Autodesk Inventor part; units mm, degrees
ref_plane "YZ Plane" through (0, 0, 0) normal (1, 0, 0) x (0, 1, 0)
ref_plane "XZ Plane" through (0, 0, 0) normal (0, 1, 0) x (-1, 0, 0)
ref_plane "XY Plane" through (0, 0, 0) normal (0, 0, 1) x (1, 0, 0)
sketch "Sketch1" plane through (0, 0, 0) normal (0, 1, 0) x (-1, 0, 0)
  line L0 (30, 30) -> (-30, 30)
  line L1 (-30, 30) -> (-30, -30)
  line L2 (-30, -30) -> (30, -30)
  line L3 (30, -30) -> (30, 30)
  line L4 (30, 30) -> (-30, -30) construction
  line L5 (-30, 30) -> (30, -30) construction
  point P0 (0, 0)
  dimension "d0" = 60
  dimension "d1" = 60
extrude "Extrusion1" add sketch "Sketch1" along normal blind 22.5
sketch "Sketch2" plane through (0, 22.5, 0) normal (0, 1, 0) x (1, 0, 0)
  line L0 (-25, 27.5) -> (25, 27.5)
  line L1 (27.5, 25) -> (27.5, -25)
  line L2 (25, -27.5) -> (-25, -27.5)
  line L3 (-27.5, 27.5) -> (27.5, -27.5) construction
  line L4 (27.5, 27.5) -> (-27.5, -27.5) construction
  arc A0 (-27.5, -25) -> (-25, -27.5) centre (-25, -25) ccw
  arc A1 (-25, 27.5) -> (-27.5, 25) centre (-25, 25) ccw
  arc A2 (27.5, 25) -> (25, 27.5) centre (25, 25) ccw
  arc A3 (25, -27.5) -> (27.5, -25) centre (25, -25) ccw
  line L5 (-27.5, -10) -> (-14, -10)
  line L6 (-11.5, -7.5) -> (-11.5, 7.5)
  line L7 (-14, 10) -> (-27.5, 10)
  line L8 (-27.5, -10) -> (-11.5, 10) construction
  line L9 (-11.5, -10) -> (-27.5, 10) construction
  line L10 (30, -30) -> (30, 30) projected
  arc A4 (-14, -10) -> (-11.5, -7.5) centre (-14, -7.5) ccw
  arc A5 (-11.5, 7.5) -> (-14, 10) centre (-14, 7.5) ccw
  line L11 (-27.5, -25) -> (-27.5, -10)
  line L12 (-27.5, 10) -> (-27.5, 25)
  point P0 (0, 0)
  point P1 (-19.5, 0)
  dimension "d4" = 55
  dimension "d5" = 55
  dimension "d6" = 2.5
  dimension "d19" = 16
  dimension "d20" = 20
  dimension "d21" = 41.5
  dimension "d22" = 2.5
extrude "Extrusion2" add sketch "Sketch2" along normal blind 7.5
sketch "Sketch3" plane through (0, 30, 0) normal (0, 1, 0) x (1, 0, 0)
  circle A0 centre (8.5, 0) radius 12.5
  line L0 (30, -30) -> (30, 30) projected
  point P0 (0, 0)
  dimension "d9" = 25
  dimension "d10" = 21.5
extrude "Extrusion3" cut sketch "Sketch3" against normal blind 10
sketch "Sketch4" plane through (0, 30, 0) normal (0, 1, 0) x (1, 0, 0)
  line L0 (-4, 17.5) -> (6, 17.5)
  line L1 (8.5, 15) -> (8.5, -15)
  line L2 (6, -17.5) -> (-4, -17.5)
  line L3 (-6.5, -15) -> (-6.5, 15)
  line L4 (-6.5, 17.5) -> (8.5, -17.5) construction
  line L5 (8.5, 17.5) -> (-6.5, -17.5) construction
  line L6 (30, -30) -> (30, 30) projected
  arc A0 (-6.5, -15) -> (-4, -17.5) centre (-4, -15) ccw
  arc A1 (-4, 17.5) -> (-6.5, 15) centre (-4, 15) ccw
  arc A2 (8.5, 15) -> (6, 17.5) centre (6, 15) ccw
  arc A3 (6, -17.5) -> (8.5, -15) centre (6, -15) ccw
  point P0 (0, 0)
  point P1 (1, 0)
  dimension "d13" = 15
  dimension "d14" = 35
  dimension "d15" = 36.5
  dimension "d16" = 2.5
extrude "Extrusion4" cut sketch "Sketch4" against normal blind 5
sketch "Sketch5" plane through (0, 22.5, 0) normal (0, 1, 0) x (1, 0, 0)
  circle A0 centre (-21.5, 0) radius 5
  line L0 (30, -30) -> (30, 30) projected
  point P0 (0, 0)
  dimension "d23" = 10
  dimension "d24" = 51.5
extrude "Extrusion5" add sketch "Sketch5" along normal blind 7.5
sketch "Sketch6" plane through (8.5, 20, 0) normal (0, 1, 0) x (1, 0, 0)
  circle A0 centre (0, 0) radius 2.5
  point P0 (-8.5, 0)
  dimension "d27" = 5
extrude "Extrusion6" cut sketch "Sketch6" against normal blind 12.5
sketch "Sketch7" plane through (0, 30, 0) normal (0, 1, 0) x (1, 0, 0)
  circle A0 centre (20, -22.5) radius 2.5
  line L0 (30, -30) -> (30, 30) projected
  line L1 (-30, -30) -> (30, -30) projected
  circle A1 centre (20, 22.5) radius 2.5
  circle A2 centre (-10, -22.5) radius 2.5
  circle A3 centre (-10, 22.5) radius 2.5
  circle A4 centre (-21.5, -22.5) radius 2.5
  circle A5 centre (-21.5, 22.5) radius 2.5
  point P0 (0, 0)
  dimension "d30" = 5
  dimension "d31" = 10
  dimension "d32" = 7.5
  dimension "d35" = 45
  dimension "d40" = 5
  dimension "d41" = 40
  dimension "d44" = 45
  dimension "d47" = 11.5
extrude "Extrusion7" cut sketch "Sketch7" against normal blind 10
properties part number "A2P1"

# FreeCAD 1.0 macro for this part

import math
import FreeCAD as App
import Part
import Sketcher

doc = App.newDocument("Part")
body = doc.addObject("PartDesign::Body", "Body")

sketch1 = body.newObject("Sketcher::SketchObject", "Sketch")
sketch1.AttachmentSupport = (doc.getObject("XZ_Plane"), [""])
sketch1.MapMode = "FlatFace"
sketch1.addGeometry(Part.LineSegment(App.Vector(-30, -30, 0), App.Vector(-30, 30, 0)), False)
sketch1.addGeometry(Part.LineSegment(App.Vector(-30, 30, 0), App.Vector(30, 30, 0)), False)
sketch1.addGeometry(Part.LineSegment(App.Vector(30, 30, 0), App.Vector(30, -30, 0)), False)
sketch1.addGeometry(Part.LineSegment(App.Vector(30, -30, 0), App.Vector(-30, -30, 0)), False)
sketch1.addConstraint(Sketcher.Constraint("Coincident", 0, 2, 1, 1))
sketch1.addConstraint(Sketcher.Constraint("Coincident", 1, 2, 2, 1))
sketch1.addConstraint(Sketcher.Constraint("Coincident", 2, 2, 3, 1))
sketch1.addConstraint(Sketcher.Constraint("Coincident", 3, 2, 0, 1))
sketch1.addConstraint(Sketcher.Constraint("Vertical", 0))
sketch1.addConstraint(Sketcher.Constraint("Horizontal", 1))
sketch1.addConstraint(Sketcher.Constraint("Vertical", 2))
sketch1.addConstraint(Sketcher.Constraint("Horizontal", 3))
sketch1.addConstraint(Sketcher.Constraint("Symmetric", 0, 2, 2, 2, -1, 1))
sketch1.addConstraint(Sketcher.Constraint("Equal", 3, 0))
sketch1.addConstraint(Sketcher.Constraint("DistanceX", 1, 1, 1, 2, 60.0))
pad1 = body.newObject("PartDesign::Pad", "Pad")
pad1.Profile = sketch1
pad1.Length = 22.5
pad1.Reversed = True

sketch2 = body.newObject("Sketcher::SketchObject", "Sketch001")
sketch2.AttachmentSupport = (doc.getObject("XZ_Plane"), [""])
sketch2.MapMode = "FlatFace"
sketch2.AttachmentOffset = App.Placement(App.Vector(0, 0, -22.5), App.Rotation())
sketch2.addGeometry(Part.LineSegment(App.Vector(25, -27.5, 0), App.Vector(-25, -27.5, 0)), False)
sketch2.addGeometry(Part.ArcOfCircle(Part.Circle(App.Vector(-25, -25, 0), App.Vector(0, 0, 1), 2.5), math.radians(180), math.radians(270)), False)
sketch2.addGeometry(Part.LineSegment(App.Vector(-27.5, -25, 0), App.Vector(-27.5, -10, 0)), False)
sketch2.addGeometry(Part.LineSegment(App.Vector(-27.5, -10, 0), App.Vector(-14, -10, 0)), False)
sketch2.addGeometry(Part.ArcOfCircle(Part.Circle(App.Vector(-14, -7.5, 0), App.Vector(0, 0, 1), 2.5), math.radians(-90), math.radians(0)), False)
sketch2.addGeometry(Part.LineSegment(App.Vector(-11.5, -7.5, 0), App.Vector(-11.5, 7.5, 0)), False)
sketch2.addGeometry(Part.ArcOfCircle(Part.Circle(App.Vector(-14, 7.5, 0), App.Vector(0, 0, 1), 2.5), math.radians(0), math.radians(90)), False)
sketch2.addGeometry(Part.LineSegment(App.Vector(-14, 10, 0), App.Vector(-27.5, 10, 0)), False)
sketch2.addGeometry(Part.LineSegment(App.Vector(-27.5, 10, 0), App.Vector(-27.5, 25, 0)), False)
sketch2.addGeometry(Part.ArcOfCircle(Part.Circle(App.Vector(-25, 25, 0), App.Vector(0, 0, 1), 2.5), math.radians(90), math.radians(180)), False)
sketch2.addGeometry(Part.LineSegment(App.Vector(-25, 27.5, 0), App.Vector(25, 27.5, 0)), False)
sketch2.addGeometry(Part.ArcOfCircle(Part.Circle(App.Vector(25, 25, 0), App.Vector(0, 0, 1), 2.5), math.radians(0), math.radians(90)), False)
sketch2.addGeometry(Part.LineSegment(App.Vector(27.5, 25, 0), App.Vector(27.5, -25, 0)), False)
sketch2.addGeometry(Part.ArcOfCircle(Part.Circle(App.Vector(25, -25, 0), App.Vector(0, 0, 1), 2.5), math.radians(-90), math.radians(0)), False)
sketch2.addConstraint(Sketcher.Constraint("Tangent", 0, 2, 1, 2))
sketch2.addConstraint(Sketcher.Constraint("Tangent", 1, 1, 2, 1))
sketch2.addConstraint(Sketcher.Constraint("Coincident", 2, 2, 3, 1))
sketch2.addConstraint(Sketcher.Constraint("Tangent", 3, 2, 4, 1))
sketch2.addConstraint(Sketcher.Constraint("Tangent", 4, 2, 5, 1))
sketch2.addConstraint(Sketcher.Constraint("Tangent", 5, 2, 6, 1))
sketch2.addConstraint(Sketcher.Constraint("Tangent", 6, 2, 7, 1))
sketch2.addConstraint(Sketcher.Constraint("Coincident", 7, 2, 8, 1))
sketch2.addConstraint(Sketcher.Constraint("Tangent", 8, 2, 9, 2))
sketch2.addConstraint(Sketcher.Constraint("Tangent", 9, 1, 10, 1))
sketch2.addConstraint(Sketcher.Constraint("Tangent", 10, 2, 11, 2))
sketch2.addConstraint(Sketcher.Constraint("Tangent", 11, 1, 12, 1))
sketch2.addConstraint(Sketcher.Constraint("Tangent", 12, 2, 13, 2))
sketch2.addConstraint(Sketcher.Constraint("Tangent", 13, 1, 0, 1))
sketch2.addConstraint(Sketcher.Constraint("Horizontal", 0))
sketch2.addConstraint(Sketcher.Constraint("Vertical", 2))
sketch2.addConstraint(Sketcher.Constraint("Horizontal", 3))
sketch2.addConstraint(Sketcher.Constraint("Vertical", 5))
sketch2.addConstraint(Sketcher.Constraint("Horizontal", 7))
sketch2.addConstraint(Sketcher.Constraint("Vertical", 8))
sketch2.addConstraint(Sketcher.Constraint("Horizontal", 10))
sketch2.addConstraint(Sketcher.Constraint("Vertical", 12))
sketch2.addConstraint(Sketcher.Constraint("Equal", 1, 4))
sketch2.addConstraint(Sketcher.Constraint("Equal", 4, 6))
sketch2.addConstraint(Sketcher.Constraint("Equal", 6, 9))
sketch2.addConstraint(Sketcher.Constraint("Equal", 9, 11))
sketch2.addConstraint(Sketcher.Constraint("Equal", 11, 13))
sketch2.addConstraint(Sketcher.Constraint("Symmetric", 1, 3, 11, 3, -1, 1))
sketch2.addConstraint(Sketcher.Constraint("Symmetric", 2, 2, 7, 2, -1))
sketch2.addConstraint(Sketcher.Constraint("Equal", 2, 5))
sketch2.addConstraint(Sketcher.Constraint("Equal", 10, 12))
sketch2.addConstraint(Sketcher.Constraint("Radius", 1, 2.5))
sketch2.addConstraint(Sketcher.Constraint("DistanceY", 0, 2, 4, 3, 20.0))
sketch2.addConstraint(Sketcher.Constraint("DistanceX", 2, 2, 4, 2, 16.0))
pad2 = body.newObject("PartDesign::Pad", "Pad001")
pad2.Profile = sketch2
pad2.Length = 7.5
pad2.Reversed = True

sketch3 = body.newObject("Sketcher::SketchObject", "Sketch002")
sketch3.AttachmentSupport = (doc.getObject("XZ_Plane"), [""])
sketch3.MapMode = "FlatFace"
sketch3.AttachmentOffset = App.Placement(App.Vector(0, 0, -30), App.Rotation())
sketch3.addGeometry(Part.Circle(App.Vector(8, 0, 0), App.Vector(0, 0, 1), 12), False)
sketch3.addConstraint(Sketcher.Constraint("PointOnObject", 0, 3, -1))
sketch3.addConstraint(Sketcher.Constraint("Diameter", 0, 25.0))
sketch3.addConstraint(Sketcher.Constraint("DistanceX", -1, 1, 0, 3, 8.5))
pocket1 = body.newObject("PartDesign::Pocket", "Pocket")
pocket1.Profile = sketch3
pocket1.Length = 10
pocket1.Reversed = True

sketch4 = body.newObject("Sketcher::SketchObject", "Sketch003")
sketch4.AttachmentSupport = (doc.getObject("XZ_Plane"), [""])
sketch4.MapMode = "FlatFace"
sketch4.AttachmentOffset = App.Placement(App.Vector(0, 0, -30), App.Rotation())
sketch4.addGeometry(Part.LineSegment(App.Vector(6, -17.5, 0), App.Vector(-4, -17.5, 0)), False)
sketch4.addGeometry(Part.ArcOfCircle(Part.Circle(App.Vector(-4, -15, 0), App.Vector(0, 0, 1), 2.5), math.radians(180), math.radians(270)), False)
sketch4.addGeometry(Part.LineSegment(App.Vector(-6.5, -15, 0), App.Vector(-6.5, 15, 0)), False)
sketch4.addGeometry(Part.ArcOfCircle(Part.Circle(App.Vector(-4, 15, 0), App.Vector(0, 0, 1), 2.5), math.radians(90), math.radians(180)), False)
sketch4.addGeometry(Part.LineSegment(App.Vector(-4, 17.5, 0), App.Vector(6, 17.5, 0)), False)
sketch4.addGeometry(Part.ArcOfCircle(Part.Circle(App.Vector(6, 15, 0), App.Vector(0, 0, 1), 2.5), math.radians(0), math.radians(90)), False)
sketch4.addGeometry(Part.LineSegment(App.Vector(8.5, 15, 0), App.Vector(8.5, -15, 0)), False)
sketch4.addGeometry(Part.ArcOfCircle(Part.Circle(App.Vector(6, -15, 0), App.Vector(0, 0, 1), 2.5), math.radians(-90), math.radians(0)), False)
sketch4.addConstraint(Sketcher.Constraint("Tangent", 0, 2, 1, 2))
sketch4.addConstraint(Sketcher.Constraint("Tangent", 1, 1, 2, 1))
sketch4.addConstraint(Sketcher.Constraint("Tangent", 2, 2, 3, 2))
sketch4.addConstraint(Sketcher.Constraint("Tangent", 3, 1, 4, 1))
sketch4.addConstraint(Sketcher.Constraint("Tangent", 4, 2, 5, 2))
sketch4.addConstraint(Sketcher.Constraint("Tangent", 5, 1, 6, 1))
sketch4.addConstraint(Sketcher.Constraint("Tangent", 6, 2, 7, 2))
sketch4.addConstraint(Sketcher.Constraint("Tangent", 7, 1, 0, 1))
sketch4.addConstraint(Sketcher.Constraint("Horizontal", 0))
sketch4.addConstraint(Sketcher.Constraint("Vertical", 2))
sketch4.addConstraint(Sketcher.Constraint("Horizontal", 4))
sketch4.addConstraint(Sketcher.Constraint("Vertical", 6))
sketch4.addConstraint(Sketcher.Constraint("Equal", 1, 3))
sketch4.addConstraint(Sketcher.Constraint("Equal", 3, 5))
sketch4.addConstraint(Sketcher.Constraint("Equal", 5, 7))
sketch4.addConstraint(Sketcher.Constraint("Radius", 1, 2.5))
sketch4.addConstraint(Sketcher.Constraint("DistanceY", 1, 3, -1, 1, 15.0))
sketch4.addConstraint(Sketcher.Constraint("DistanceY", -1, 1, 3, 3, 15.0))
sketch4.addConstraint(Sketcher.Constraint("DistanceX", 2, 2, 5, 1, 15.0))
sketch4.addConstraint(Sketcher.Constraint("DistanceX", 1, 3, -1, 1, 4.0))
pocket2 = body.newObject("PartDesign::Pocket", "Pocket001")
pocket2.Profile = sketch4
pocket2.Length = 5
pocket2.Reversed = True

sketch5 = body.newObject("Sketcher::SketchObject", "Sketch004")
sketch5.AttachmentSupport = (doc.getObject("XZ_Plane"), [""])
sketch5.MapMode = "FlatFace"
sketch5.AttachmentOffset = App.Placement(App.Vector(0, 0, -22.5), App.Rotation())
sketch5.addGeometry(Part.Circle(App.Vector(-22, 0, 0), App.Vector(0, 0, 1), 5), False)
sketch5.addConstraint(Sketcher.Constraint("PointOnObject", 0, 3, -1))
sketch5.addConstraint(Sketcher.Constraint("Diameter", 0, 10.0))
sketch5.addConstraint(Sketcher.Constraint("DistanceX", 0, 3, -1, 1, 21.5))
pad3 = body.newObject("PartDesign::Pad", "Pad002")
pad3.Profile = sketch5
pad3.Length = 7.5
pad3.Reversed = True

sketch6 = body.newObject("Sketcher::SketchObject", "Sketch005")
sketch6.AttachmentSupport = (doc.getObject("XZ_Plane"), [""])
sketch6.MapMode = "FlatFace"
sketch6.AttachmentOffset = App.Placement(App.Vector(0, 0, -20), App.Rotation())
sketch6.addGeometry(Part.Circle(App.Vector(8.5, 0, 0), App.Vector(0, 0, 1), 2.5), False)
sketch6.addConstraint(Sketcher.Constraint("PointOnObject", 0, 3, -1))
sketch6.addConstraint(Sketcher.Constraint("Diameter", 0, 5.0))
sketch6.addConstraint(Sketcher.Constraint("DistanceX", -1, 1, 0, 3, 8.5))
pocket3 = body.newObject("PartDesign::Pocket", "Pocket002")
pocket3.Profile = sketch6
pocket3.Length = 12.5
pocket3.Reversed = True

sketch7 = body.newObject("Sketcher::SketchObject", "Sketch006")
sketch7.AttachmentSupport = (doc.getObject("XZ_Plane"), [""])
sketch7.MapMode = "FlatFace"
sketch7.AttachmentOffset = App.Placement(App.Vector(0, 0, -30), App.Rotation())
sketch7.addGeometry(Part.Circle(App.Vector(20, 22.5, 0), App.Vector(0, 0, 1), 2.5), False)
sketch7.addGeometry(Part.Circle(App.Vector(20, -22.5, 0), App.Vector(0, 0, 1), 2.5), False)
sketch7.addGeometry(Part.Circle(App.Vector(-10, 22.5, 0), App.Vector(0, 0, 1), 2.5), False)
sketch7.addGeometry(Part.Circle(App.Vector(-10, -22.5, 0), App.Vector(0, 0, 1), 2.5), False)
sketch7.addGeometry(Part.Circle(App.Vector(-21.5, 22.5, 0), App.Vector(0, 0, 1), 2.5), False)
sketch7.addGeometry(Part.Circle(App.Vector(-21.5, -22.5, 0), App.Vector(0, 0, 1), 2.5), False)
sketch7.addConstraint(Sketcher.Constraint("Equal", 0, 1))
sketch7.addConstraint(Sketcher.Constraint("Equal", 1, 2))
sketch7.addConstraint(Sketcher.Constraint("Equal", 2, 3))
sketch7.addConstraint(Sketcher.Constraint("Equal", 3, 4))
sketch7.addConstraint(Sketcher.Constraint("Equal", 4, 5))
sketch7.addConstraint(Sketcher.Constraint("Symmetric", 0, 3, 1, 3, -1))
sketch7.addConstraint(Sketcher.Constraint("Symmetric", 2, 3, 3, 3, -1))
sketch7.addConstraint(Sketcher.Constraint("Symmetric", 4, 3, 5, 3, -1))
sketch7.addConstraint(Sketcher.Constraint("Horizontal", 0, 3, 2, 3))
sketch7.addConstraint(Sketcher.Constraint("Horizontal", 2, 3, 4, 3))
sketch7.addConstraint(Sketcher.Constraint("Diameter", 0, 5.0))
sketch7.addConstraint(Sketcher.Constraint("DistanceX", 2, 3, -1, 1, 10.0))
sketch7.addConstraint(Sketcher.Constraint("DistanceY", 1, 3, 0, 3, 45.0))
sketch7.addConstraint(Sketcher.Constraint("DistanceX", 4, 3, 2, 3, 11.5))
sketch7.addConstraint(Sketcher.Constraint("DistanceX", -1, 1, 0, 3, 20.0))
pocket4 = body.newObject("PartDesign::Pocket", "Pocket003")
pocket4.Profile = sketch7
pocket4.Length = 10
pocket4.Reversed = True

doc.recompute()
